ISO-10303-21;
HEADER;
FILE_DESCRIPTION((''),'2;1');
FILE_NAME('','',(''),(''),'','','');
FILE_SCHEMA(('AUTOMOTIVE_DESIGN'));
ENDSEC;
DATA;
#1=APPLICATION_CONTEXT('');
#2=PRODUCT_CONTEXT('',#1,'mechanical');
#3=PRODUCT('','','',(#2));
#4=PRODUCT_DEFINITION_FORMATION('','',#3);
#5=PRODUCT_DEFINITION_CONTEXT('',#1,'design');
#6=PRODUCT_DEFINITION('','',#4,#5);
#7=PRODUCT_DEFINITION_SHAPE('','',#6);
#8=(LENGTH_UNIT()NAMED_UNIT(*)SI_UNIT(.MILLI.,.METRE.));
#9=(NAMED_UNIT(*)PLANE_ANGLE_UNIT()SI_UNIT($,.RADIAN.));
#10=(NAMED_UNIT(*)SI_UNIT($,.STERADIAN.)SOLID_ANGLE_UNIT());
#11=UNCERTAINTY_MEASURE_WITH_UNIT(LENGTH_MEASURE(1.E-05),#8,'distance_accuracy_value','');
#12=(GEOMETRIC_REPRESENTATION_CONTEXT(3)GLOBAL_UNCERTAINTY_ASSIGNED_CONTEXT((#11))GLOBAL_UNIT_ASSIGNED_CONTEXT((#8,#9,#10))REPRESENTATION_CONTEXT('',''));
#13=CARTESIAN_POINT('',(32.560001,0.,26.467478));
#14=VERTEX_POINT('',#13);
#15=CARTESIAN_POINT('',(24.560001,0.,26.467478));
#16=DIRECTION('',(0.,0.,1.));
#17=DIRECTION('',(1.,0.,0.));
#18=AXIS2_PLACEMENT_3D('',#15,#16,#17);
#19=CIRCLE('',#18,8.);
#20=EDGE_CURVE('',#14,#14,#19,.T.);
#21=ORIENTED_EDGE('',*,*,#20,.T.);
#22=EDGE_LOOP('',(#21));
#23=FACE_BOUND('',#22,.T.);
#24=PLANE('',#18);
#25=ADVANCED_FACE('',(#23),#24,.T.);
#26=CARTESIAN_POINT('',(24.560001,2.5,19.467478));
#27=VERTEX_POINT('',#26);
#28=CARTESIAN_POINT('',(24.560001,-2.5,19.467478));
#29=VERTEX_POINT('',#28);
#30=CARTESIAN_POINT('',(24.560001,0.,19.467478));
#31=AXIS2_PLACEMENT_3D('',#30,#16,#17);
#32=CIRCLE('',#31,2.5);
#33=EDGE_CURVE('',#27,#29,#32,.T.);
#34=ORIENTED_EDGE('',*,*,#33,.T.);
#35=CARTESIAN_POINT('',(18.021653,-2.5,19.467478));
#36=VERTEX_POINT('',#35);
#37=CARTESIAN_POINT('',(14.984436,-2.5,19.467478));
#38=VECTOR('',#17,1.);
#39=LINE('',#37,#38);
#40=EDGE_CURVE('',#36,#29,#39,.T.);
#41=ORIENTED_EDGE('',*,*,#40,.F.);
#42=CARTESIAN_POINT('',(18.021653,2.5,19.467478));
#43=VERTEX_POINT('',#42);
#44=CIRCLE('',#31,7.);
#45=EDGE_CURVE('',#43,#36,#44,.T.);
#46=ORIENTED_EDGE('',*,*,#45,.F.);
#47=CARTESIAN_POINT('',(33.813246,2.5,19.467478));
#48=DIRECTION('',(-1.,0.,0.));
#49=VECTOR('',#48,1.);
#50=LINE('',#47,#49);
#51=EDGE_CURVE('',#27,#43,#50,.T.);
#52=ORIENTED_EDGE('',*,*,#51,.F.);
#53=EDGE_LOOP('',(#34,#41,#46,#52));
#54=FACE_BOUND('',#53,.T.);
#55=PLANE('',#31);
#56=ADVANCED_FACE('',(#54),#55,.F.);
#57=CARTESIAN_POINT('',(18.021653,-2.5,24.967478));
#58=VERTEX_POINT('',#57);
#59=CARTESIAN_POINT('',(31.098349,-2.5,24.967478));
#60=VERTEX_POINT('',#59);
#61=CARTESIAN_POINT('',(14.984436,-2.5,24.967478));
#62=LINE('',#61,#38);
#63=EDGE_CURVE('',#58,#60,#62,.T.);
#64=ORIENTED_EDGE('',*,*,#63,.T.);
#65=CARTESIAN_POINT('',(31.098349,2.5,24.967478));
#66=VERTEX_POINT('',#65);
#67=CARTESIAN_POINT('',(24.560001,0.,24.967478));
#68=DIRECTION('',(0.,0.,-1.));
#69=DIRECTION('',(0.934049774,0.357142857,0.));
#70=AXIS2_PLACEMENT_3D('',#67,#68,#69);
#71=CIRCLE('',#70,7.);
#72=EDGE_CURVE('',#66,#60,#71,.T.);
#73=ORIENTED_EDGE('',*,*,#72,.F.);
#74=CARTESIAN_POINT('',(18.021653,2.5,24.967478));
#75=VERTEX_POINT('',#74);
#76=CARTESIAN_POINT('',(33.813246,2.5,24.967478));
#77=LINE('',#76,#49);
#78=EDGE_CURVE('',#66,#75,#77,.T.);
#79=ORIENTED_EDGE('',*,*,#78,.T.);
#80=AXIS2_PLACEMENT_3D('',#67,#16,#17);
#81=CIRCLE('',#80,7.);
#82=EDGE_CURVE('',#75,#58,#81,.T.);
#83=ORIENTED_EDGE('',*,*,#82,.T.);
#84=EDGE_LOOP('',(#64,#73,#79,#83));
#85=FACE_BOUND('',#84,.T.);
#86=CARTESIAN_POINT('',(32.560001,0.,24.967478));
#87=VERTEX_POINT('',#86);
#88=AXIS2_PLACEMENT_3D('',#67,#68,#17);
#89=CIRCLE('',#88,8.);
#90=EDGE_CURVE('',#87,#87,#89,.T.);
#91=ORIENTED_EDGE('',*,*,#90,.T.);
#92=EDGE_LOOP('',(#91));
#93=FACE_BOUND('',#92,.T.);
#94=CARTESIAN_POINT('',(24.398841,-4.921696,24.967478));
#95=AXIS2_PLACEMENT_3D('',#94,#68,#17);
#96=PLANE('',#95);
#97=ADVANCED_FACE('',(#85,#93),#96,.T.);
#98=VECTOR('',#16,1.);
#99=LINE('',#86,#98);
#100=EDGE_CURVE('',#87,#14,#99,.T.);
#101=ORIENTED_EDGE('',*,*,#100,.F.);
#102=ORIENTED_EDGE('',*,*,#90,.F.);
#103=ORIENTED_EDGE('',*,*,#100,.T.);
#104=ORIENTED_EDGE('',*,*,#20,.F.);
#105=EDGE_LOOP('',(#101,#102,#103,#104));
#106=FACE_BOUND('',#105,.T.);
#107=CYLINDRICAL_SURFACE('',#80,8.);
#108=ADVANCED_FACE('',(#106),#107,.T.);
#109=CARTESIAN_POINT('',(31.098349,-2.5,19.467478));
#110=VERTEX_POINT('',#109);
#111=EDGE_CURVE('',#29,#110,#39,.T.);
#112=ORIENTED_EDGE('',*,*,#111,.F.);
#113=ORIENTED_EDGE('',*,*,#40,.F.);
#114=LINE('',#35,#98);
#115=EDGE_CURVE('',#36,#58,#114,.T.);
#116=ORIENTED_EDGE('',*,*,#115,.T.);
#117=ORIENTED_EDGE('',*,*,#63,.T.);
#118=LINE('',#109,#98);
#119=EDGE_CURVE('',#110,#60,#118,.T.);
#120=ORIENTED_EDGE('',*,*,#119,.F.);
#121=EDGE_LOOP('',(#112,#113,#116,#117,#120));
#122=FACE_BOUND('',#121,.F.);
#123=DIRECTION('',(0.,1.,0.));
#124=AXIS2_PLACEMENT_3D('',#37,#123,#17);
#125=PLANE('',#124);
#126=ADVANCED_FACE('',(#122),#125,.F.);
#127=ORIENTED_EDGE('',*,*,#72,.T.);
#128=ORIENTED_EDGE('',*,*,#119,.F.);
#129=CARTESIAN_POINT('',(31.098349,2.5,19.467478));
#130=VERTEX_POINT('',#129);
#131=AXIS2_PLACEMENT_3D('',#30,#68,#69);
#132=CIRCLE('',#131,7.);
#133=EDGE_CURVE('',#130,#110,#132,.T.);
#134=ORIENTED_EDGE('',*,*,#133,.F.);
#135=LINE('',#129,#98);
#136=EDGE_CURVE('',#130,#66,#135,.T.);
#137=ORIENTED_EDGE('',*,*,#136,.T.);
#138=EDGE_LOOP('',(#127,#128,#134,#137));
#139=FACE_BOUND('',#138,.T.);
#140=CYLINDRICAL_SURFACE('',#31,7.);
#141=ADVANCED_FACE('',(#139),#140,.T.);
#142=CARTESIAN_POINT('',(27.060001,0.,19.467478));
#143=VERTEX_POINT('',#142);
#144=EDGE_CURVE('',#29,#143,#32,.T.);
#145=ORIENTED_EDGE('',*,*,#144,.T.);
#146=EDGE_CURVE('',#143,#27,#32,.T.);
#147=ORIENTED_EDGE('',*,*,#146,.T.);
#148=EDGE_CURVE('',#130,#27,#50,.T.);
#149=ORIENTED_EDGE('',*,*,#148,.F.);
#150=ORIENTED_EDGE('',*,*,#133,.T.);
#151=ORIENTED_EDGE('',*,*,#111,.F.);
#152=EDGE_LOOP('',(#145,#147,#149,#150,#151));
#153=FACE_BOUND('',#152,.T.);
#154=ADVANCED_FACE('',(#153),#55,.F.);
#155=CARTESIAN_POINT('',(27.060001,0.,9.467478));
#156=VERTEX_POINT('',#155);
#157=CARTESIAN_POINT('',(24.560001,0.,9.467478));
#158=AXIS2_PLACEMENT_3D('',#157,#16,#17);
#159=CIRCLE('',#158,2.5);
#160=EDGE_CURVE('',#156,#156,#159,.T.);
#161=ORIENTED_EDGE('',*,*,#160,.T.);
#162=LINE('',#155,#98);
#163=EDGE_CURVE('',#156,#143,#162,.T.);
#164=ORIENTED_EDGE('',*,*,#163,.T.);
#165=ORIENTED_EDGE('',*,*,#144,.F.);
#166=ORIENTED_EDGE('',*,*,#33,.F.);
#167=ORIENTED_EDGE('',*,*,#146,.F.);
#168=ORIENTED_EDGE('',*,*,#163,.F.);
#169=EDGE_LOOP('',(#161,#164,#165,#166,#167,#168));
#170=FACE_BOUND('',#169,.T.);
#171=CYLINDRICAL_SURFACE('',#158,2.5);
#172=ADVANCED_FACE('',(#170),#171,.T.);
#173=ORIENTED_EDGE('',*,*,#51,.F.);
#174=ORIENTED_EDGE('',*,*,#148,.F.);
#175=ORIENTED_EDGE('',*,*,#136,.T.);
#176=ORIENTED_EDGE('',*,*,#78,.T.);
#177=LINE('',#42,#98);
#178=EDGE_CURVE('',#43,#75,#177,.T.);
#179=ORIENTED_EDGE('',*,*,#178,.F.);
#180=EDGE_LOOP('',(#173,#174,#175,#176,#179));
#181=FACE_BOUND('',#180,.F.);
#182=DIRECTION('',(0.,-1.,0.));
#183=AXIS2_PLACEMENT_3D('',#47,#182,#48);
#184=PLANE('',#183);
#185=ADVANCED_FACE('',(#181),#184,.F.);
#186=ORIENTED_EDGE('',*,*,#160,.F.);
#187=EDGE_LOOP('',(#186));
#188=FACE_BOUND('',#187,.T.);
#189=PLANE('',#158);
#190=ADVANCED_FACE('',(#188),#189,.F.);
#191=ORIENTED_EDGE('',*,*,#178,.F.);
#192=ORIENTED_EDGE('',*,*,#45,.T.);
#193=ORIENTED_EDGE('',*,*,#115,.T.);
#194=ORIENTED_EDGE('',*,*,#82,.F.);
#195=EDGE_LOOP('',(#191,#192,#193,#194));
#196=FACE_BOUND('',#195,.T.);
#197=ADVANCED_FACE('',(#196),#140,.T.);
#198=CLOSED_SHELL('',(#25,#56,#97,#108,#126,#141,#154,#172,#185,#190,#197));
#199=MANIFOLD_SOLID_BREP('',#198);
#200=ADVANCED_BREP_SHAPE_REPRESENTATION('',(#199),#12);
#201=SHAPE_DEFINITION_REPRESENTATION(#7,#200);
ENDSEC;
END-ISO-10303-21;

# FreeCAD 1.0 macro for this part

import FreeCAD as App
import Part
import Sketcher

V = App.Vector
Q = App.Units.Quantity


def add_polygon(sketch, points):
    """Adds a closed chain of lines whose ends are joined by coincident constraints."""
    first, n = sketch.GeometryCount, len(points)
    for a, b in zip(points, points[1:] + points[:1]):
        sketch.addGeometry(Part.LineSegment(App.Vector(*a, 0), App.Vector(*b, 0)), False)
    for i in range(n):
        sketch.addConstraint(Sketcher.Constraint("Coincident", first + i, 2, first + (i + 1) % n, 1))

doc = App.newDocument("Part")
body = doc.addObject("PartDesign::Body", "Body")

# Sketch on XZ plane
sketch1 = body.newObject("Sketcher::SketchObject", "Sketch")
sketch1.AttachmentSupport = (doc.getObject("XZ_Plane"), [""])
sketch1.MapMode = "FlatFace"
add_polygon(sketch1, [(24.6, 26.5), (24.6, 9.5), (27.1, 9.5), (27.1, 19.5), (31.6, 19.5), (31.6, 25), (32.6, 25), (32.6, 26.5)])  # lines 0-7
sketch1.addGeometry(Part.LineSegment(V(24.6, 9.5, 0), V(24.6, 26.5, 0)), True)  # axis
sketch1.addConstraint([
    Sketcher.Constraint("Vertical", 0),
    Sketcher.Constraint("Horizontal", 1),
    Sketcher.Constraint("Vertical", 2),
    Sketcher.Constraint("Horizontal", 3),
    Sketcher.Constraint("Vertical", 4),
    Sketcher.Constraint("Horizontal", 5),
    Sketcher.Constraint("Vertical", 6),
    Sketcher.Constraint("Horizontal", 7),
    Sketcher.Constraint("Vertical", 8),
    Sketcher.Constraint("Coincident", 8, 1, 0, 2),
    Sketcher.Constraint("Horizontal", 6, 2, 8, 2),
    Sketcher.Constraint("DistanceX", 5, 1, 5, 2, Q("1 mm")),
    Sketcher.Constraint("DistanceX", 7, 2, 7, 1, Q("8 mm")),
    Sketcher.Constraint("DistanceY", 0, 2, 0, 1, Q("17 mm")),
    Sketcher.Constraint("DistanceY", 2, 1, 2, 2, Q("10 mm")),
    Sketcher.Constraint("DistanceX", 1, 1, 1, 2, Q("2.5 mm")),
    Sketcher.Constraint("DistanceY", 4, 1, 4, 2, Q("5.5 mm")),
    Sketcher.Constraint("DistanceX", -1, 1, 0, 2, Q("24.560001 mm")),
    Sketcher.Constraint("DistanceY", -1, 1, 2, 2, Q("19.467478 mm")),
])
revolution = body.newObject("PartDesign::Revolution", "Revolution")
revolution.Profile = sketch1
revolution.ReferenceAxis = (sketch1, ["Axis0"])
revolution.Angle = 360

# Sketch on XY plane
sketch2 = body.newObject("Sketcher::SketchObject", "Sketch001")
sketch2.AttachmentSupport = (doc.getObject("XY_Plane"), [""])
sketch2.MapMode = "FlatFace"
sketch2.AttachmentOffset = App.Placement(V(0, 0, 19.467478), App.Rotation())
add_polygon(sketch2, [(15, -2.5), (33.8, -2.5), (33.8, -7.3), (15, -7.3)])  # lines 0-3
add_polygon(sketch2, [(33.8, 2.5), (15, 2.5), (15, 7.3), (33.8, 7.3)])  # lines 4-7
sketch2.addConstraint([
    Sketcher.Constraint("Horizontal", 0),
    Sketcher.Constraint("Vertical", 1),
    Sketcher.Constraint("Horizontal", 2),
    Sketcher.Constraint("Vertical", 3),
    Sketcher.Constraint("Horizontal", 4),
    Sketcher.Constraint("Vertical", 5),
    Sketcher.Constraint("Horizontal", 6),
    Sketcher.Constraint("Vertical", 7),
    Sketcher.Constraint("Symmetric", 3, 2, 4, 2, -1),
    Sketcher.Constraint("Symmetric", 1, 2, 6, 2, -1),
    Sketcher.Constraint("DistanceY", 3, 2, 4, 2, Q("5 mm")),
    Sketcher.Constraint("DistanceX", 0, 1, 0, 2, Q("18.82881 mm")),
    Sketcher.Constraint("DistanceY", 1, 2, 1, 1, Q("4.843391 mm")),
    Sketcher.Constraint("DistanceX", -1, 1, 0, 2, Q("33.813246 mm")),
])
pocket1 = body.newObject("PartDesign::Pocket", "Pocket")
pocket1.Profile = sketch2
pocket1.Length = 5.5
pocket1.Reversed = True

doc.recompute()
